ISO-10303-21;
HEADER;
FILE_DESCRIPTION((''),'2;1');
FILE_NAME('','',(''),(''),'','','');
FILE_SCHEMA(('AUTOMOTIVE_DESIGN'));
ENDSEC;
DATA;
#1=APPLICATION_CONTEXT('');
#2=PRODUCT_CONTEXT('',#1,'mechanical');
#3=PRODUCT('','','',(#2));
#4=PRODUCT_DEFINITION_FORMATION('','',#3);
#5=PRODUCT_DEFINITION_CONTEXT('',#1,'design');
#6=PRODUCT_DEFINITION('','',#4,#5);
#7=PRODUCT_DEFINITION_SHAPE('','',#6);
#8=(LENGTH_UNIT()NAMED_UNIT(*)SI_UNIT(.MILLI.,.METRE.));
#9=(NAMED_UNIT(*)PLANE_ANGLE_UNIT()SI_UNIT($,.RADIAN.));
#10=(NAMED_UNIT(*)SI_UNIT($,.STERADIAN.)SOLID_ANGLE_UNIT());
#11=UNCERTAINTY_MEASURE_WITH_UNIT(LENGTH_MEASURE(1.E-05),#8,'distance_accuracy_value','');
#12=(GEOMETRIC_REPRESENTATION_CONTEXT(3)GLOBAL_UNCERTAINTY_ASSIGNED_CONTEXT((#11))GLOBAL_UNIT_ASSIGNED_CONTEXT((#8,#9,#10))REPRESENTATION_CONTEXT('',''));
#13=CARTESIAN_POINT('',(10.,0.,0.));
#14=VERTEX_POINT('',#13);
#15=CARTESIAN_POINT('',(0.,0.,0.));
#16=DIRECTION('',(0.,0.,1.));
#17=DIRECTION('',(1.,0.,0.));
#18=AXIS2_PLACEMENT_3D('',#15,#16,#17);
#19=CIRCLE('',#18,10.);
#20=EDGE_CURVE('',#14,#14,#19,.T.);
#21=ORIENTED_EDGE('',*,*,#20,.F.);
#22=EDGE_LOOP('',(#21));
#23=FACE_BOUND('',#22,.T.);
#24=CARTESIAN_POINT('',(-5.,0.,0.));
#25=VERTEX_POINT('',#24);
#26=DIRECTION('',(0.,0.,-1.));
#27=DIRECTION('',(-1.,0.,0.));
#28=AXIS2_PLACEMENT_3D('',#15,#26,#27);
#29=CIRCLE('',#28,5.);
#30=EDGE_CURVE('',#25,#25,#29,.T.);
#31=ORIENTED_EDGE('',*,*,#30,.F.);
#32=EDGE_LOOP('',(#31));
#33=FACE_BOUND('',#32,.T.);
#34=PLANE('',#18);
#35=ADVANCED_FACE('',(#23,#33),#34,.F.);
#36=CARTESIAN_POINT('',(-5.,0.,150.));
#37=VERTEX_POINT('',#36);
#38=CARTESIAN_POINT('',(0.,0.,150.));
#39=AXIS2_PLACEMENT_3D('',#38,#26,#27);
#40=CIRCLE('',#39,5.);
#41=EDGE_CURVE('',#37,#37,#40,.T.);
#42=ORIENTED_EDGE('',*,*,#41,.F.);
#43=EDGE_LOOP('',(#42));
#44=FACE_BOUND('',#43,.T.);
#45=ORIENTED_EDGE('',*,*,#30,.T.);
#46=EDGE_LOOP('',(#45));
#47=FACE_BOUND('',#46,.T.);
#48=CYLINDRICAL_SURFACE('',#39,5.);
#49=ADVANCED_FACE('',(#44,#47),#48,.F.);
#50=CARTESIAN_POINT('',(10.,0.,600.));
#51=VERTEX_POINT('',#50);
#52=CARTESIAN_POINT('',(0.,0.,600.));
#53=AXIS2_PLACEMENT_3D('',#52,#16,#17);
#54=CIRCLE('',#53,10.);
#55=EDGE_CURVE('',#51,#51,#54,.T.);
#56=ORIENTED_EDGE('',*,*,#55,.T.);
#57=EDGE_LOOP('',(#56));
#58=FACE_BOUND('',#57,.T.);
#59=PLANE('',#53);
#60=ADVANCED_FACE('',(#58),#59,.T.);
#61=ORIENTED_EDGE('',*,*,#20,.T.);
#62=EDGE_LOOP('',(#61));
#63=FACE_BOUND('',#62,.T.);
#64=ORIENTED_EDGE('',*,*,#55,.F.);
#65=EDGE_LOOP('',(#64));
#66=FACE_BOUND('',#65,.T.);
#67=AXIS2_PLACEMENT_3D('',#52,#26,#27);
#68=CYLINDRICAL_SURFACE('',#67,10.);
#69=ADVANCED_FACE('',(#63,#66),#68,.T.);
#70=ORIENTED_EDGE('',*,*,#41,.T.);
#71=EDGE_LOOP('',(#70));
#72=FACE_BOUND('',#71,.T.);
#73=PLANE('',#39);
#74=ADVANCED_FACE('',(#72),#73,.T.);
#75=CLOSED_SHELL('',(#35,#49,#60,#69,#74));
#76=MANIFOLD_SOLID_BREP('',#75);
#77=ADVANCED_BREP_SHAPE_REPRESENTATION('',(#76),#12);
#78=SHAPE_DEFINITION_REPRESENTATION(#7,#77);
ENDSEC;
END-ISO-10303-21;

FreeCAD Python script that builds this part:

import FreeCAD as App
import Part
import Sketcher
from FreeCAD import Vector

doc = App.newDocument("Part")
body = doc.addObject("PartDesign::Body", "Body")

# Sketch on XY plane
sketch1 = body.newObject("Sketcher::SketchObject", "Sketch")
sketch1.AttachmentSupport = (doc.getObject("XY_Plane"), [""])
sketch1.MapMode = "FlatFace"
sketch1.addGeometry(Part.Circle(Vector(0, 0, 0), Vector(0, 0, 1), 10), False)
sketch1.addConstraint(Sketcher.Constraint("Coincident", 0, 3, -1, 1))
sketch1.addConstraint(Sketcher.Constraint("Diameter", 0, 20.0))
pad1 = body.newObject("PartDesign::Pad", "Pad")
pad1.Profile = sketch1
pad1.Length = 600

# Sketch on XY plane
sketch2 = body.newObject("Sketcher::SketchObject", "Sketch001")
sketch2.AttachmentSupport = (doc.getObject("XY_Plane"), [""])
sketch2.MapMode = "FlatFace"
sketch2.addGeometry(Part.Circle(Vector(0, 0, 0), Vector(0, 0, 1), 5), False)
sketch2.addConstraint(Sketcher.Constraint("Coincident", 0, 3, -1, 1))
sketch2.addConstraint(Sketcher.Constraint("Diameter", 0, 10.0))
pocket1 = body.newObject("PartDesign::Pocket", "Pocket")
pocket1.Profile = sketch2
pocket1.Length = 150
pocket1.Reversed = True

doc.recompute()
